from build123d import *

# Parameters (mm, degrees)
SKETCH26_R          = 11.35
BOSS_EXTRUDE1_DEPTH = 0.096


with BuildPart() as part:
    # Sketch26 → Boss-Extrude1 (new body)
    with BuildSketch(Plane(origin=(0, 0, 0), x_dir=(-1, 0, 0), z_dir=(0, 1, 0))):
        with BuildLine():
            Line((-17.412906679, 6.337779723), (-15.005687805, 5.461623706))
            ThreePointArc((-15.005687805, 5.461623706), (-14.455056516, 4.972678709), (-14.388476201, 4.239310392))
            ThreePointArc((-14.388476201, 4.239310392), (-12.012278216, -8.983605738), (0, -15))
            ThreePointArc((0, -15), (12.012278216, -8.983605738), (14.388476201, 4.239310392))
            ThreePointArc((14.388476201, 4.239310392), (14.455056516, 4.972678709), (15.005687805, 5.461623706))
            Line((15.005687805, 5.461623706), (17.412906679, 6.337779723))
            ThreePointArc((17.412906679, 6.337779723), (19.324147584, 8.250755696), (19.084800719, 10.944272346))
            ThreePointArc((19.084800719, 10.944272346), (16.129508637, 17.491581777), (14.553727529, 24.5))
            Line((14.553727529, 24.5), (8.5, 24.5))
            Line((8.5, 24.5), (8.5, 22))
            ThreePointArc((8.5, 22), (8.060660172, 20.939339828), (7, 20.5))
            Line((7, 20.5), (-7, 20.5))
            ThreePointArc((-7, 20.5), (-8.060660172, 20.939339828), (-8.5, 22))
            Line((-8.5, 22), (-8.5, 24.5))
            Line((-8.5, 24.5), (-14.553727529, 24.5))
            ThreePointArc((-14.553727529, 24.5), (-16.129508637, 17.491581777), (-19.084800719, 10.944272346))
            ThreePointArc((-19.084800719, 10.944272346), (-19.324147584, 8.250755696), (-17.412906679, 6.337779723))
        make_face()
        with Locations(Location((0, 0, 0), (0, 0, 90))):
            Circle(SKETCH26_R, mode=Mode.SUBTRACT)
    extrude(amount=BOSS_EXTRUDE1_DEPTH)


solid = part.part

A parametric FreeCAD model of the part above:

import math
import FreeCAD as App
import Part
import Sketcher
from FreeCAD import Vector
Q = App.Units.Quantity

doc = App.newDocument("Part")
body = doc.addObject("PartDesign::Body", "Body")

sketch1 = body.newObject("Sketcher::SketchObject", "Sketch")
sketch1.AttachmentSupport = (doc.getObject("XZ_Plane"), [""])
sketch1.MapMode = "FlatFace"
sketch1.addGeometry([
    Part.LineSegment(Vector(17.4, 6.3, 0), Vector(15, 5.5, 0)),
    Part.ArcOfCircle(Part.Circle(Vector(15.3, 4.5, 0), Vector(0, 0, 1), 1), math.radians(110), math.radians(196)),
    Part.ArcOfCircle(Part.Circle(Vector(0, 0, 0), Vector(0, 0, 1), 15), math.radians(-90), math.radians(16)),
    Part.ArcOfCircle(Part.Circle(Vector(0, 0, 0), Vector(0, 0, 1), 15), math.radians(164), math.radians(270)),
    Part.ArcOfCircle(Part.Circle(Vector(-15.3, 4.5, 0), Vector(0, 0, 1), 1), math.radians(-16), math.radians(70)),
    Part.LineSegment(Vector(-15, 5.5, 0), Vector(-17.4, 6.3, 0)),
    Part.ArcOfCircle(Part.Circle(Vector(-16.3, 9.3, 0), Vector(0, 0, 1), 3.2), math.radians(150), math.radians(250)),
    Part.ArcOfCircle(Part.Circle(Vector(-49.8, 28.7, 0), Vector(0, 0, 1), 35.5), math.radians(-30), math.radians(-7)),
    Part.LineSegment(Vector(-14.6, 24.5, 0), Vector(-8.5, 24.5, 0)),
    Part.LineSegment(Vector(-8.5, 24.5, 0), Vector(-8.5, 22, 0)),
    Part.ArcOfCircle(Part.Circle(Vector(-7, 22, 0), Vector(0, 0, 1), 1.5), math.radians(180), math.radians(270)),
    Part.LineSegment(Vector(-7, 20.5, 0), Vector(7, 20.5, 0)),
    Part.ArcOfCircle(Part.Circle(Vector(7, 22, 0), Vector(0, 0, 1), 1.5), math.radians(-90), math.radians(0)),
    Part.LineSegment(Vector(8.5, 22, 0), Vector(8.5, 24.5, 0)),
    Part.LineSegment(Vector(8.5, 24.5, 0), Vector(14.6, 24.5, 0)),
    Part.ArcOfCircle(Part.Circle(Vector(49.8, 28.7, 0), Vector(0, 0, 1), 35.5), math.radians(-173), math.radians(-150)),
    Part.ArcOfCircle(Part.Circle(Vector(16.3, 9.3, 0), Vector(0, 0, 1), 3.2), math.radians(-70), math.radians(30)),
    Part.Circle(Vector(0, 0, 0), Vector(0, 0, 1), 11.3),
], False)
sketch1.addConstraint([
    Sketcher.Constraint("Tangent", 0, 2, 1, 1),
    Sketcher.Constraint("Tangent", 1, 2, 2, 2),
    Sketcher.Constraint("Tangent", 2, 1, 3, 2),
    Sketcher.Constraint("Tangent", 3, 1, 4, 1),
    Sketcher.Constraint("Tangent", 4, 2, 5, 1),
    Sketcher.Constraint("Tangent", 5, 2, 6, 2),
    Sketcher.Constraint("Tangent", 6, 1, 7, 1),
    Sketcher.Constraint("Coincident", 7, 2, 8, 1),
    Sketcher.Constraint("Coincident", 8, 2, 9, 1),
    Sketcher.Constraint("Tangent", 9, 2, 10, 1),
    Sketcher.Constraint("Tangent", 10, 2, 11, 1),
    Sketcher.Constraint("Tangent", 11, 2, 12, 1),
    Sketcher.Constraint("Tangent", 12, 2, 13, 1),
    Sketcher.Constraint("Coincident", 13, 2, 14, 1),
    Sketcher.Constraint("Coincident", 14, 2, 15, 1),
    Sketcher.Constraint("Tangent", 15, 2, 16, 2),
    Sketcher.Constraint("Tangent", 16, 1, 0, 1),
    Sketcher.Constraint("Horizontal", 8),
    Sketcher.Constraint("Vertical", 9),
    Sketcher.Constraint("Horizontal", 11),
    Sketcher.Constraint("Vertical", 13),
    Sketcher.Constraint("Horizontal", 14),
    Sketcher.Constraint("Coincident", 2, 3, -1, 1),
    Sketcher.Constraint("Coincident", 17, 3, -1, 1),
    Sketcher.Constraint("Equal", 2, 3),
    Sketcher.Constraint("Equal", 1, 4),
    Sketcher.Constraint("Equal", 10, 12),
    Sketcher.Constraint("Equal", 7, 15),
    Sketcher.Constraint("Equal", 6, 16),
    Sketcher.Constraint("Symmetric", 7, 3, 15, 3, -2),
    Sketcher.Constraint("Symmetric", 0, 2, 4, 2, -2),
    Sketcher.Constraint("Symmetric", 8, 2, 13, 2, -2),
    Sketcher.Constraint("PointOnObject", 2, 1, -2),
    Sketcher.Constraint("Radius", 1, 1.0),
    Sketcher.Constraint("Radius", 2, 15.0),
    Sketcher.Constraint("Diameter", 17, 22.7),
    Sketcher.Constraint("Radius", 10, 1.5),
    Sketcher.Constraint("DistanceX", 11, 1, 11, 2, 14.0),
    Sketcher.Constraint("Angle", 0, Q("-160 deg")),
    Sketcher.Constraint("DistanceY", 9, 2, 9, 1, 2.5),
    Sketcher.Constraint("DistanceY", -1, 1, 10, 3, 22.0),
    Sketcher.Constraint("Radius", 6, 3.196149),
    Sketcher.Constraint("Radius", 7, 35.475953),
    Sketcher.Constraint("DistanceX", 6, 1, -1, 1, 19.084801),
    Sketcher.Constraint("DistanceY", 6, 3, 7, 3, 19.396799),
    Sketcher.Constraint("DistanceX", 5, 2, 4, 3, 2.065199),
])
pad1 = body.newObject("PartDesign::Pad", "Pad")
pad1.Profile = sketch1
pad1.Length = 0.096
pad1.Reversed = True

doc.recompute()
